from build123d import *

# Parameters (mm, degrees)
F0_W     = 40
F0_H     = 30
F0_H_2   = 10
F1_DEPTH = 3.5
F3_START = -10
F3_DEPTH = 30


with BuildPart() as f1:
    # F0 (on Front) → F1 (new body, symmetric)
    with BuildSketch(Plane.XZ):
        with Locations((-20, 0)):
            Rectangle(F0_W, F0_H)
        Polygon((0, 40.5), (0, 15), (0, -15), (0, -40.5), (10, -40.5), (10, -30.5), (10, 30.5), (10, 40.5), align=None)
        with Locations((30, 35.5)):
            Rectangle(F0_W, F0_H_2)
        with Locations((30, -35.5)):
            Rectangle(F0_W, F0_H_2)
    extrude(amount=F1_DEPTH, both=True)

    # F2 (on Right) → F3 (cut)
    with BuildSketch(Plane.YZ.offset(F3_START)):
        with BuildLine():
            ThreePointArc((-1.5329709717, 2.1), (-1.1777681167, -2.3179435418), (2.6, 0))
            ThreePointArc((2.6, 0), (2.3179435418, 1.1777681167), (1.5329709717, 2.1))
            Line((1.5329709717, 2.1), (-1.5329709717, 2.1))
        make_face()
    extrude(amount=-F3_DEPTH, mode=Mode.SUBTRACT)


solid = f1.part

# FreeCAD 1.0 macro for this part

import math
import FreeCAD as App
import Part
import Sketcher

V = App.Vector

doc = App.newDocument("Part")
body = doc.addObject("PartDesign::Body", "Body")

sketch1 = doc.addObject("Sketcher::SketchObject", "Sketch")
body.addObject(sketch1)
sketch1.AttachmentSupport = (doc.XZ_Plane, [""])
sketch1.MapMode = "FlatFace"
sketch1.addGeometry([
    Part.LineSegment(V(-40, 15, 0), V(-40, -15, 0)),
    Part.LineSegment(V(-40, -15, 0), V(0, -15, 0)),
    Part.LineSegment(V(0, -15, 0), V(0, -40, 0)),
    Part.LineSegment(V(0, -40, 0), V(50, -40, 0)),
    Part.LineSegment(V(50, -40, 0), V(50, -30, 0)),
    Part.LineSegment(V(50, -30, 0), V(10, -30, 0)),
    Part.LineSegment(V(10, -30, 0), V(10, 30, 0)),
    Part.LineSegment(V(10, 30, 0), V(50, 30, 0)),
    Part.LineSegment(V(50, 30, 0), V(50, 40, 0)),
    Part.LineSegment(V(50, 40, 0), V(0, 40, 0)),
    Part.LineSegment(V(0, 40, 0), V(0, 15, 0)),
    Part.LineSegment(V(0, 15, 0), V(-40, 15, 0)),
], False)
sketch1.addConstraint([
    Sketcher.Constraint("Coincident", 0, 2, 1, 1),
    Sketcher.Constraint("Coincident", 1, 2, 2, 1),
    Sketcher.Constraint("Coincident", 2, 2, 3, 1),
    Sketcher.Constraint("Coincident", 3, 2, 4, 1),
    Sketcher.Constraint("Coincident", 4, 2, 5, 1),
    Sketcher.Constraint("Coincident", 5, 2, 6, 1),
    Sketcher.Constraint("Coincident", 6, 2, 7, 1),
    Sketcher.Constraint("Coincident", 7, 2, 8, 1),
    Sketcher.Constraint("Coincident", 8, 2, 9, 1),
    Sketcher.Constraint("Coincident", 9, 2, 10, 1),
    Sketcher.Constraint("Coincident", 10, 2, 11, 1),
    Sketcher.Constraint("Coincident", 11, 2, 0, 1),
    Sketcher.Constraint("Vertical", 0),
    Sketcher.Constraint("Horizontal", 1),
    Sketcher.Constraint("Vertical", 2),
    Sketcher.Constraint("Horizontal", 3),
    Sketcher.Constraint("Vertical", 4),
    Sketcher.Constraint("Horizontal", 5),
    Sketcher.Constraint("Vertical", 6),
    Sketcher.Constraint("Horizontal", 7),
    Sketcher.Constraint("Vertical", 8),
    Sketcher.Constraint("Horizontal", 9),
    Sketcher.Constraint("Vertical", 10),
    Sketcher.Constraint("Horizontal", 11),
    Sketcher.Constraint("Symmetric", 2, 2, 9, 2, -1, 1),
    Sketcher.Constraint("Symmetric", 4, 2, 7, 2, -1),
    Sketcher.Constraint("Symmetric", 1, 2, 10, 2, -1),
    Sketcher.Constraint("Equal", 1, 5),
    Sketcher.Constraint("DistanceX", 1, 1, 1, 2, 40.0),
    Sketcher.Constraint("DistanceX", 3, 1, 3, 2, 50.0),
    Sketcher.Constraint("DistanceY", 0, 2, 0, 1, 30.0),
    Sketcher.Constraint("DistanceY", 4, 1, 4, 2, 10.0),
    Sketcher.Constraint("DistanceY", 6, 1, 6, 2, 61.0),
])
pad1 = doc.addObject("PartDesign::Pad", "Pad")
body.addObject(pad1)
pad1.Profile = sketch1
pad1.Length = 7
pad1.Midplane = True

sketch2 = doc.addObject("Sketcher::SketchObject", "Sketch001")
body.addObject(sketch2)
sketch2.AttachmentSupport = (doc.YZ_Plane, [""])
sketch2.MapMode = "FlatFace"
sketch2.AttachmentOffset = App.Placement(V(0, 0, -10), App.Rotation())
sketch2.addGeometry([
    Part.ArcOfCircle(Part.Circle(V(0, 0, 0), V(0, 0, 1), 2.6), math.radians(126), math.radians(360)),
    Part.ArcOfCircle(Part.Circle(V(0, 0, 0), V(0, 0, 1), 2.6), math.radians(0), math.radians(54)),
    Part.LineSegment(V(1.5, 2.1, 0), V(-1.5, 2.1, 0)),
], False)
sketch2.addConstraint([
    Sketcher.Constraint("Tangent", 0, 2, 1, 1),
    Sketcher.Constraint("Coincident", 1, 2, 2, 1),
    Sketcher.Constraint("Coincident", 2, 2, 0, 1),
    Sketcher.Constraint("Horizontal", 2),
    Sketcher.Constraint("Coincident", 0, 3, -1, 1),
    Sketcher.Constraint("Equal", 0, 1),
    Sketcher.Constraint("PointOnObject", 0, 2, -1),
    Sketcher.Constraint("Radius", 0, 2.6),
    Sketcher.Constraint("DistanceY", -1, 1, 1, 2, 2.1),
])
pocket1 = doc.addObject("PartDesign::Pocket", "Pocket")
body.addObject(pocket1)
pocket1.Profile = sketch2
pocket1.Length = 30

doc.recompute()
